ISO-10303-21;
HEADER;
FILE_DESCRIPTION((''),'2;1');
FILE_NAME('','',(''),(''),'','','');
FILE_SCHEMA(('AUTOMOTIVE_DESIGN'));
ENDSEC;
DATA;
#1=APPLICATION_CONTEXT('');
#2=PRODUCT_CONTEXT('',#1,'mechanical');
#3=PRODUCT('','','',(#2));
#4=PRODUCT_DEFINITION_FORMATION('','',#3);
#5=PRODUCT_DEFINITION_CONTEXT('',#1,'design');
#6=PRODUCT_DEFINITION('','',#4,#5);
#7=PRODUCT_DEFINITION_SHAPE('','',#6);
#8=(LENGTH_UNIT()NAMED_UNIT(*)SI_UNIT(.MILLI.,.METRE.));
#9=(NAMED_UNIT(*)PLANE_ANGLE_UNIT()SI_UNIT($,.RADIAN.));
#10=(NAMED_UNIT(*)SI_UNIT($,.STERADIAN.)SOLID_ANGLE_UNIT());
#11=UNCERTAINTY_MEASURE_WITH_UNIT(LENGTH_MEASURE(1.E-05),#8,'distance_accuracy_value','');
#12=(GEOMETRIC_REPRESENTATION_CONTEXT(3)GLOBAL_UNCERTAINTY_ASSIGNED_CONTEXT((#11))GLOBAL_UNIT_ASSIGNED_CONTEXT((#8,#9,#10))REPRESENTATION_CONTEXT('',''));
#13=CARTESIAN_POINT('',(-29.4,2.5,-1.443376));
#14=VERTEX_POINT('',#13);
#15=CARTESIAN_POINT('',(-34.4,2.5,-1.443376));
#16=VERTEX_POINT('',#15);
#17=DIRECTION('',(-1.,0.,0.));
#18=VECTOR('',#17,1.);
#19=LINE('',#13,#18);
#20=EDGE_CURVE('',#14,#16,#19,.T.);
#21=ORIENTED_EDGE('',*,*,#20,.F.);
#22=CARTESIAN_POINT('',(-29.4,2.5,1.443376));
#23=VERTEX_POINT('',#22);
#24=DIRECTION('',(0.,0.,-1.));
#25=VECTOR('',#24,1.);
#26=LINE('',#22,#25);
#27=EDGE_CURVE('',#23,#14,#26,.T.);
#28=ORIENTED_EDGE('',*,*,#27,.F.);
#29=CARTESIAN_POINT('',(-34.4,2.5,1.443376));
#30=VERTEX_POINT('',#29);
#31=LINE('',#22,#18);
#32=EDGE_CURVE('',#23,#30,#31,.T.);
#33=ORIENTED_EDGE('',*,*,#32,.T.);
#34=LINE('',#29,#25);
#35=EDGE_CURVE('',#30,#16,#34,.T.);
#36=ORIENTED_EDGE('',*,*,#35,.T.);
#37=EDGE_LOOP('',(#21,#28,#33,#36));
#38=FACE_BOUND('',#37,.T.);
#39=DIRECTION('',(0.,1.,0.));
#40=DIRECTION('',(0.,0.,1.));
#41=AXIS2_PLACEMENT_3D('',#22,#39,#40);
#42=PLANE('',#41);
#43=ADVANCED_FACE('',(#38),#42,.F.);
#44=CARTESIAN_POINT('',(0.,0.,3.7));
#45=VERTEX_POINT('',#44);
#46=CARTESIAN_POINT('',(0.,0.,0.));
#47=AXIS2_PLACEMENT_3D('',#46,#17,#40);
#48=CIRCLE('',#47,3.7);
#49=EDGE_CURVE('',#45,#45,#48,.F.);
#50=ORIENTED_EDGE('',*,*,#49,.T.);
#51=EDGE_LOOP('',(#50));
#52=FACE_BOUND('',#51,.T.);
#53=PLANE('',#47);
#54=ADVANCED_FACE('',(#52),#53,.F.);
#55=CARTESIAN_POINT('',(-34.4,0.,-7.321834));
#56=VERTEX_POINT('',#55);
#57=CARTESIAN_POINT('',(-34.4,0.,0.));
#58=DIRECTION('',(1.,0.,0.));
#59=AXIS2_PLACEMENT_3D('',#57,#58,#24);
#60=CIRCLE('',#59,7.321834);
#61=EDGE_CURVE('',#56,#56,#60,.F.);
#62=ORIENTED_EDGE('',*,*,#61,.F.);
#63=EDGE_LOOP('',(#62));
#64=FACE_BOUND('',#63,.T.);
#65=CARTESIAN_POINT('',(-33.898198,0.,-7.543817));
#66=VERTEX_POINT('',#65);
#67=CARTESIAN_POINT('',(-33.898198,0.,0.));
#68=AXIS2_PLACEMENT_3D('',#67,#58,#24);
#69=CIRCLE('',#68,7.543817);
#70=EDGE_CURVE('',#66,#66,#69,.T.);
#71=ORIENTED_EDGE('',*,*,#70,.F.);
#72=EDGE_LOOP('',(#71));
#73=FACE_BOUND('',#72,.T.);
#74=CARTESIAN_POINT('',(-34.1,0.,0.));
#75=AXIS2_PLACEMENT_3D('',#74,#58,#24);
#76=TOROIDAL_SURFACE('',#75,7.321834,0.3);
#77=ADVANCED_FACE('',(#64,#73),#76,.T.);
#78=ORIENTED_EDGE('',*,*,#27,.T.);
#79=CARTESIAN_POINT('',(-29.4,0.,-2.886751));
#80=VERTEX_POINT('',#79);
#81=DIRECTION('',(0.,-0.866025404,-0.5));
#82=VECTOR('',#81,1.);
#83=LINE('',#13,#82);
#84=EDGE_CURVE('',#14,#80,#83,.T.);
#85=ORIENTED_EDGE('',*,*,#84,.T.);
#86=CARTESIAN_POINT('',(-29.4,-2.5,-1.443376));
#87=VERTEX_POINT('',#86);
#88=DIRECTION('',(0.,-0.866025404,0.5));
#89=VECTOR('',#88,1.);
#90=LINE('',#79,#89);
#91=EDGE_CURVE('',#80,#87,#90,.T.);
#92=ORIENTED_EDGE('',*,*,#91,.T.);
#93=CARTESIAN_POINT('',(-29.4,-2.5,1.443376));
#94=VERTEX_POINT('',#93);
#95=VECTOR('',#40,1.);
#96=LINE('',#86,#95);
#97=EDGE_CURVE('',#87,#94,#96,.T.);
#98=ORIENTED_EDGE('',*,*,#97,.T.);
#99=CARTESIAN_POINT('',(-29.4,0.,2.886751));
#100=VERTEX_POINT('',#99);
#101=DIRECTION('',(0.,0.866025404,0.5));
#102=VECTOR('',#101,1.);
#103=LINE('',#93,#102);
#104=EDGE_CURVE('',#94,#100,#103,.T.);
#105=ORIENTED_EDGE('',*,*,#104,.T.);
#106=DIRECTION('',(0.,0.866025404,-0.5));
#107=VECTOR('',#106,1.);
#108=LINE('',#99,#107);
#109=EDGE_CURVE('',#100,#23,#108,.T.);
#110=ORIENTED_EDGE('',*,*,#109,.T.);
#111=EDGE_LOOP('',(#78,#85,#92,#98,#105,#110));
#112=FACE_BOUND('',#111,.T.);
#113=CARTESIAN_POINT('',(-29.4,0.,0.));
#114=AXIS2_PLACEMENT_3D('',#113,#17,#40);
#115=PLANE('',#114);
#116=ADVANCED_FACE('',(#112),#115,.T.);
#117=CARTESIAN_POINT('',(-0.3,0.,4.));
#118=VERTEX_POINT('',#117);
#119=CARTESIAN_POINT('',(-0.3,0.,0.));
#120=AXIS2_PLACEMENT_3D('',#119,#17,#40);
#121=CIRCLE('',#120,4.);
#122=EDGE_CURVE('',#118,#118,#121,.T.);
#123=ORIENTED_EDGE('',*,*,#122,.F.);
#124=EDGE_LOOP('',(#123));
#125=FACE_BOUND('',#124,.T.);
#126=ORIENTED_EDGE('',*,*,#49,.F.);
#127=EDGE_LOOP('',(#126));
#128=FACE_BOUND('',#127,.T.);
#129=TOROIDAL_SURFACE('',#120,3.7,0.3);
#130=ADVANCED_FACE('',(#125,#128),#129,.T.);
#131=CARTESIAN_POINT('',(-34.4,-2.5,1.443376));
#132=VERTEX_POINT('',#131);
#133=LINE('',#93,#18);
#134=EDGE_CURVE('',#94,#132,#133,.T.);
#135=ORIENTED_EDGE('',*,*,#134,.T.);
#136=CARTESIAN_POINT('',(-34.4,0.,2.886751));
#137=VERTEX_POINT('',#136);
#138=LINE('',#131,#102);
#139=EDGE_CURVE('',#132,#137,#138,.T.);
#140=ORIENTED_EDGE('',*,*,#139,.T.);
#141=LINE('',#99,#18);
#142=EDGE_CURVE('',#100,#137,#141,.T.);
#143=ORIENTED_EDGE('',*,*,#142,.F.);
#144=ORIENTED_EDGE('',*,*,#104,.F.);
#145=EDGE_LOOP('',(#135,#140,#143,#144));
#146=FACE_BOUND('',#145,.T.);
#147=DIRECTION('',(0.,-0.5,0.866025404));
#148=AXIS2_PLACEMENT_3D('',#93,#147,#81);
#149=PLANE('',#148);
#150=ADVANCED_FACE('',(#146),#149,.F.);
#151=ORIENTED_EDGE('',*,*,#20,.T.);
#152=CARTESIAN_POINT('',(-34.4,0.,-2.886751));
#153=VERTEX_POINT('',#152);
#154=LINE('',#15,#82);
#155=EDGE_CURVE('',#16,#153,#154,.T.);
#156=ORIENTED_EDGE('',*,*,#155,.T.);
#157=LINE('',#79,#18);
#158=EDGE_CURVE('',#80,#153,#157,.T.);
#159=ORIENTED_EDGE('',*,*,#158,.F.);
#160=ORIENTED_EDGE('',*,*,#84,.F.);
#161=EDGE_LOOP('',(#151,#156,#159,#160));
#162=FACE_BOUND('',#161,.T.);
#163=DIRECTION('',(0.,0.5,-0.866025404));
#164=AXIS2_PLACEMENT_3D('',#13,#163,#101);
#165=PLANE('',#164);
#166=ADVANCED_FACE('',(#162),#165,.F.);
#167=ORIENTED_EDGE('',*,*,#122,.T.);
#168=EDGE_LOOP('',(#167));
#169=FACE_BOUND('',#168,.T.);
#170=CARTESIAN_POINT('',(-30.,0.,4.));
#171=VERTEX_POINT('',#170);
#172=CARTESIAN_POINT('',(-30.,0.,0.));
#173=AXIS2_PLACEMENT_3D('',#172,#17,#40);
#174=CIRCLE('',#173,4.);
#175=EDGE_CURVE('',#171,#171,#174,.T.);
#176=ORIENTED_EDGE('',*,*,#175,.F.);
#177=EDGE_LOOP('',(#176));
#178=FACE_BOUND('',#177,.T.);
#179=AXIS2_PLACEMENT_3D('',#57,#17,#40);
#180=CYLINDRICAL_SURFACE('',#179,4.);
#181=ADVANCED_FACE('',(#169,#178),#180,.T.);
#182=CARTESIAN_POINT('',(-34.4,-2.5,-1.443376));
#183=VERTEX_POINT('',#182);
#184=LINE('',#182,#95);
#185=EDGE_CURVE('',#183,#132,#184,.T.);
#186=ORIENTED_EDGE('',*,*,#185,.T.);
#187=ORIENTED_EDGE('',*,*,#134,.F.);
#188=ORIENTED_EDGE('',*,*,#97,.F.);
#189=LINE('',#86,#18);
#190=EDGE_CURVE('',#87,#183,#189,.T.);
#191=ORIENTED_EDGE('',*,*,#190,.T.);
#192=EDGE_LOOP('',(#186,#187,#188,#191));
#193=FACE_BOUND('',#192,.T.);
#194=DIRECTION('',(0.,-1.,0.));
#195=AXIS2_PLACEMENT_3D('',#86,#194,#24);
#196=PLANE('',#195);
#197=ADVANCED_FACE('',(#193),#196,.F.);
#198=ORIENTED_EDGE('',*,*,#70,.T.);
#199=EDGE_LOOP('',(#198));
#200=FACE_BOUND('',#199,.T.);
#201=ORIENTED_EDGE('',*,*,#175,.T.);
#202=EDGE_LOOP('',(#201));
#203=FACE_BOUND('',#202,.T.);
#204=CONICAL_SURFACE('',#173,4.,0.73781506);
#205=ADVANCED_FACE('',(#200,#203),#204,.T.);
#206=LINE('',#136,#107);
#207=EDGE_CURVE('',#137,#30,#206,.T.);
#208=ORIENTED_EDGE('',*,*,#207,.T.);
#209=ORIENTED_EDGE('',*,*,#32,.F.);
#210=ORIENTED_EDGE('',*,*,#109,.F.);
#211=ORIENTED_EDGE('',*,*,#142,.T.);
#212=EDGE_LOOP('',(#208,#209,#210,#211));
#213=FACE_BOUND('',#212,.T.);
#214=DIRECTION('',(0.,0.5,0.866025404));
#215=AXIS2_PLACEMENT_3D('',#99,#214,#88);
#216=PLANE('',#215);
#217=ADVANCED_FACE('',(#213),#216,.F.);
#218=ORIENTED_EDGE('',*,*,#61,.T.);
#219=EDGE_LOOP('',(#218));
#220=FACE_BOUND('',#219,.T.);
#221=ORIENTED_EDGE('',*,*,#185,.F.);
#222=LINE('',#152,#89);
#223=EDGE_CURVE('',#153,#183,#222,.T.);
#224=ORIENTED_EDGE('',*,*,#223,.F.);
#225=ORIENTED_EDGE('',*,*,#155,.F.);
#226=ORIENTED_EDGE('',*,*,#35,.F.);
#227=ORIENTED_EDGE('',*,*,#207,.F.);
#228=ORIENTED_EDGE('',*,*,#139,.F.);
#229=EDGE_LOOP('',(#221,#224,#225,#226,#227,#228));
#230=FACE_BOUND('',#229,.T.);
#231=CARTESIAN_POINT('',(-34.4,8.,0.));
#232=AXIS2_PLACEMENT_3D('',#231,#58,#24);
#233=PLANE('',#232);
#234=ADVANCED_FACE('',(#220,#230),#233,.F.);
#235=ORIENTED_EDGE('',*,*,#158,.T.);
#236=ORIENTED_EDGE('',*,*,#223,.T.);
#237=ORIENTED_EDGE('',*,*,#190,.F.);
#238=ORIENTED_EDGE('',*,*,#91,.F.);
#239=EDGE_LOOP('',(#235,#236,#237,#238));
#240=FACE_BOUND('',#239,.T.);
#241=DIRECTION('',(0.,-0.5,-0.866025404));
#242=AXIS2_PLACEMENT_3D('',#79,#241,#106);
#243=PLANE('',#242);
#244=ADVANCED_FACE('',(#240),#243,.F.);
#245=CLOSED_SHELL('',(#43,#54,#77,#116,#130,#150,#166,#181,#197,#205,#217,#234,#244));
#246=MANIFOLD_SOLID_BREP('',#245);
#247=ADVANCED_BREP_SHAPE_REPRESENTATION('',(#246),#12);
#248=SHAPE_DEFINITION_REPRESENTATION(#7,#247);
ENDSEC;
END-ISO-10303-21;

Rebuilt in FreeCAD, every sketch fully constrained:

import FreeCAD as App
import Part
import Sketcher
from FreeCAD import Vector
Q = App.Units.Quantity


def edges_at(feature, points):
    """Names of the edges that pass closest to the given points."""
    edges = feature.Shape.Edges
    near = lambda p: min(range(len(edges)), key=lambda i: edges[i].distToShape(Part.Vertex(*p))[0])
    return sorted({f"Edge{near(p) + 1}" for p in points})

doc = App.newDocument("Part")
body = doc.addObject("PartDesign::Body", "Body")

# Sketch on XY plane
sketch1 = doc.addObject("Sketcher::SketchObject", "Sketch")
body.addObject(sketch1)
sketch1.AttachmentSupport = (doc.XY_Plane, [""])
sketch1.MapMode = "FlatFace"
sketch1.addGeometry(Part.LineSegment(Vector(0, 0, 0), Vector(0, 4, 0)), False)
sketch1.addGeometry(Part.LineSegment(Vector(0, 4, 0), Vector(-30, 4, 0)), False)
sketch1.addGeometry(Part.LineSegment(Vector(-30, 4, 0), Vector(-34.4, 8, 0)), False)
sketch1.addGeometry(Part.LineSegment(Vector(-34.4, 8, 0), Vector(-34.4, 0, 0)), False)
sketch1.addGeometry(Part.LineSegment(Vector(-34.4, 0, 0), Vector(0, 0, 0)), False)
sketch1.addConstraint(Sketcher.Constraint("Coincident", 0, 2, 1, 1))
sketch1.addConstraint(Sketcher.Constraint("Coincident", 1, 2, 2, 1))
sketch1.addConstraint(Sketcher.Constraint("Coincident", 2, 2, 3, 1))
sketch1.addConstraint(Sketcher.Constraint("Coincident", 3, 2, 4, 1))
sketch1.addConstraint(Sketcher.Constraint("Coincident", 4, 2, 0, 1))
sketch1.addConstraint(Sketcher.Constraint("Vertical", 0))
sketch1.addConstraint(Sketcher.Constraint("Horizontal", 1))
sketch1.addConstraint(Sketcher.Constraint("Vertical", 3))
sketch1.addConstraint(Sketcher.Constraint("Horizontal", 4))
sketch1.addConstraint(Sketcher.Constraint("Coincident", 4, 2, -1, 1))
sketch1.addConstraint(Sketcher.Constraint("DistanceX", 1, 2, 1, 1, 30.0))
sketch1.addConstraint(Sketcher.Constraint("DistanceY", 0, 1, 0, 2, 4.0))
sketch1.addConstraint(Sketcher.Constraint("DistanceY", 3, 2, 3, 1, 8.0))
sketch1.addConstraint(Sketcher.Constraint("DistanceX", 4, 1, 4, 2, 34.4))
revolution = doc.addObject("PartDesign::Revolution", "Revolution")
body.addObject(revolution)
revolution.Profile = sketch1
revolution.ReferenceAxis = (sketch1, ["H_Axis"])
revolution.Angle = 360

# Sketch on YZ plane
sketch2 = doc.addObject("Sketcher::SketchObject", "Sketch001")
body.addObject(sketch2)
sketch2.AttachmentSupport = (doc.YZ_Plane, [""])
sketch2.MapMode = "FlatFace"
sketch2.AttachmentOffset = App.Placement(Vector(0, 0, -34.4), App.Rotation())
sketch2.addGeometry(Part.LineSegment(Vector(0, 2.9, 0), Vector(2.5, 1.4, 0)), False)
sketch2.addGeometry(Part.LineSegment(Vector(2.5, 1.4, 0), Vector(2.5, -1.4, 0)), False)
sketch2.addGeometry(Part.LineSegment(Vector(2.5, -1.4, 0), Vector(0, -2.9, 0)), False)
sketch2.addGeometry(Part.LineSegment(Vector(0, -2.9, 0), Vector(-2.5, -1.4, 0)), False)
sketch2.addGeometry(Part.LineSegment(Vector(-2.5, -1.4, 0), Vector(-2.5, 1.4, 0)), False)
sketch2.addGeometry(Part.LineSegment(Vector(-2.5, 1.4, 0), Vector(0, 2.9, 0)), False)
sketch2.addConstraint(Sketcher.Constraint("Coincident", 0, 2, 1, 1))
sketch2.addConstraint(Sketcher.Constraint("Coincident", 1, 2, 2, 1))
sketch2.addConstraint(Sketcher.Constraint("Coincident", 2, 2, 3, 1))
sketch2.addConstraint(Sketcher.Constraint("Coincident", 3, 2, 4, 1))
sketch2.addConstraint(Sketcher.Constraint("Coincident", 4, 2, 5, 1))
sketch2.addConstraint(Sketcher.Constraint("Coincident", 5, 2, 0, 1))
sketch2.addConstraint(Sketcher.Constraint("Vertical", 1))
sketch2.addConstraint(Sketcher.Constraint("Vertical", 4))
sketch2.addConstraint(Sketcher.Constraint("Symmetric", 0, 2, 3, 2, -1, 1))
sketch2.addConstraint(Sketcher.Constraint("Symmetric", 2, 2, 5, 2, -1, 1))
sketch2.addConstraint(Sketcher.Constraint("PointOnObject", 2, 2, -2))
sketch2.addConstraint(Sketcher.Constraint("Parallel", 2, 5))
sketch2.addConstraint(Sketcher.Constraint("Horizontal", 1, 2, 3, 2))
sketch2.addConstraint(Sketcher.Constraint("Angle", 0, Q("-30 deg")))
sketch2.addConstraint(Sketcher.Constraint("DistanceX", 3, 2, 1, 2, 5.0))
sketch2.addConstraint(Sketcher.Constraint("DistanceY", 1, 2, 1, 1, 2.886751))
pocket1 = doc.addObject("PartDesign::Pocket", "Pocket")
body.addObject(pocket1)
pocket1.Profile = sketch2
pocket1.Length = 5
pocket1.Reversed = True
doc.recompute()

fillet = doc.addObject("PartDesign::Fillet", "Fillet")
body.addObject(fillet)
fillet.Base = (pocket1, edges_at(pocket1, [(-34.4, 0, -8), (0, 0, -4)]))
fillet.Radius = 0.3

doc.recompute()
